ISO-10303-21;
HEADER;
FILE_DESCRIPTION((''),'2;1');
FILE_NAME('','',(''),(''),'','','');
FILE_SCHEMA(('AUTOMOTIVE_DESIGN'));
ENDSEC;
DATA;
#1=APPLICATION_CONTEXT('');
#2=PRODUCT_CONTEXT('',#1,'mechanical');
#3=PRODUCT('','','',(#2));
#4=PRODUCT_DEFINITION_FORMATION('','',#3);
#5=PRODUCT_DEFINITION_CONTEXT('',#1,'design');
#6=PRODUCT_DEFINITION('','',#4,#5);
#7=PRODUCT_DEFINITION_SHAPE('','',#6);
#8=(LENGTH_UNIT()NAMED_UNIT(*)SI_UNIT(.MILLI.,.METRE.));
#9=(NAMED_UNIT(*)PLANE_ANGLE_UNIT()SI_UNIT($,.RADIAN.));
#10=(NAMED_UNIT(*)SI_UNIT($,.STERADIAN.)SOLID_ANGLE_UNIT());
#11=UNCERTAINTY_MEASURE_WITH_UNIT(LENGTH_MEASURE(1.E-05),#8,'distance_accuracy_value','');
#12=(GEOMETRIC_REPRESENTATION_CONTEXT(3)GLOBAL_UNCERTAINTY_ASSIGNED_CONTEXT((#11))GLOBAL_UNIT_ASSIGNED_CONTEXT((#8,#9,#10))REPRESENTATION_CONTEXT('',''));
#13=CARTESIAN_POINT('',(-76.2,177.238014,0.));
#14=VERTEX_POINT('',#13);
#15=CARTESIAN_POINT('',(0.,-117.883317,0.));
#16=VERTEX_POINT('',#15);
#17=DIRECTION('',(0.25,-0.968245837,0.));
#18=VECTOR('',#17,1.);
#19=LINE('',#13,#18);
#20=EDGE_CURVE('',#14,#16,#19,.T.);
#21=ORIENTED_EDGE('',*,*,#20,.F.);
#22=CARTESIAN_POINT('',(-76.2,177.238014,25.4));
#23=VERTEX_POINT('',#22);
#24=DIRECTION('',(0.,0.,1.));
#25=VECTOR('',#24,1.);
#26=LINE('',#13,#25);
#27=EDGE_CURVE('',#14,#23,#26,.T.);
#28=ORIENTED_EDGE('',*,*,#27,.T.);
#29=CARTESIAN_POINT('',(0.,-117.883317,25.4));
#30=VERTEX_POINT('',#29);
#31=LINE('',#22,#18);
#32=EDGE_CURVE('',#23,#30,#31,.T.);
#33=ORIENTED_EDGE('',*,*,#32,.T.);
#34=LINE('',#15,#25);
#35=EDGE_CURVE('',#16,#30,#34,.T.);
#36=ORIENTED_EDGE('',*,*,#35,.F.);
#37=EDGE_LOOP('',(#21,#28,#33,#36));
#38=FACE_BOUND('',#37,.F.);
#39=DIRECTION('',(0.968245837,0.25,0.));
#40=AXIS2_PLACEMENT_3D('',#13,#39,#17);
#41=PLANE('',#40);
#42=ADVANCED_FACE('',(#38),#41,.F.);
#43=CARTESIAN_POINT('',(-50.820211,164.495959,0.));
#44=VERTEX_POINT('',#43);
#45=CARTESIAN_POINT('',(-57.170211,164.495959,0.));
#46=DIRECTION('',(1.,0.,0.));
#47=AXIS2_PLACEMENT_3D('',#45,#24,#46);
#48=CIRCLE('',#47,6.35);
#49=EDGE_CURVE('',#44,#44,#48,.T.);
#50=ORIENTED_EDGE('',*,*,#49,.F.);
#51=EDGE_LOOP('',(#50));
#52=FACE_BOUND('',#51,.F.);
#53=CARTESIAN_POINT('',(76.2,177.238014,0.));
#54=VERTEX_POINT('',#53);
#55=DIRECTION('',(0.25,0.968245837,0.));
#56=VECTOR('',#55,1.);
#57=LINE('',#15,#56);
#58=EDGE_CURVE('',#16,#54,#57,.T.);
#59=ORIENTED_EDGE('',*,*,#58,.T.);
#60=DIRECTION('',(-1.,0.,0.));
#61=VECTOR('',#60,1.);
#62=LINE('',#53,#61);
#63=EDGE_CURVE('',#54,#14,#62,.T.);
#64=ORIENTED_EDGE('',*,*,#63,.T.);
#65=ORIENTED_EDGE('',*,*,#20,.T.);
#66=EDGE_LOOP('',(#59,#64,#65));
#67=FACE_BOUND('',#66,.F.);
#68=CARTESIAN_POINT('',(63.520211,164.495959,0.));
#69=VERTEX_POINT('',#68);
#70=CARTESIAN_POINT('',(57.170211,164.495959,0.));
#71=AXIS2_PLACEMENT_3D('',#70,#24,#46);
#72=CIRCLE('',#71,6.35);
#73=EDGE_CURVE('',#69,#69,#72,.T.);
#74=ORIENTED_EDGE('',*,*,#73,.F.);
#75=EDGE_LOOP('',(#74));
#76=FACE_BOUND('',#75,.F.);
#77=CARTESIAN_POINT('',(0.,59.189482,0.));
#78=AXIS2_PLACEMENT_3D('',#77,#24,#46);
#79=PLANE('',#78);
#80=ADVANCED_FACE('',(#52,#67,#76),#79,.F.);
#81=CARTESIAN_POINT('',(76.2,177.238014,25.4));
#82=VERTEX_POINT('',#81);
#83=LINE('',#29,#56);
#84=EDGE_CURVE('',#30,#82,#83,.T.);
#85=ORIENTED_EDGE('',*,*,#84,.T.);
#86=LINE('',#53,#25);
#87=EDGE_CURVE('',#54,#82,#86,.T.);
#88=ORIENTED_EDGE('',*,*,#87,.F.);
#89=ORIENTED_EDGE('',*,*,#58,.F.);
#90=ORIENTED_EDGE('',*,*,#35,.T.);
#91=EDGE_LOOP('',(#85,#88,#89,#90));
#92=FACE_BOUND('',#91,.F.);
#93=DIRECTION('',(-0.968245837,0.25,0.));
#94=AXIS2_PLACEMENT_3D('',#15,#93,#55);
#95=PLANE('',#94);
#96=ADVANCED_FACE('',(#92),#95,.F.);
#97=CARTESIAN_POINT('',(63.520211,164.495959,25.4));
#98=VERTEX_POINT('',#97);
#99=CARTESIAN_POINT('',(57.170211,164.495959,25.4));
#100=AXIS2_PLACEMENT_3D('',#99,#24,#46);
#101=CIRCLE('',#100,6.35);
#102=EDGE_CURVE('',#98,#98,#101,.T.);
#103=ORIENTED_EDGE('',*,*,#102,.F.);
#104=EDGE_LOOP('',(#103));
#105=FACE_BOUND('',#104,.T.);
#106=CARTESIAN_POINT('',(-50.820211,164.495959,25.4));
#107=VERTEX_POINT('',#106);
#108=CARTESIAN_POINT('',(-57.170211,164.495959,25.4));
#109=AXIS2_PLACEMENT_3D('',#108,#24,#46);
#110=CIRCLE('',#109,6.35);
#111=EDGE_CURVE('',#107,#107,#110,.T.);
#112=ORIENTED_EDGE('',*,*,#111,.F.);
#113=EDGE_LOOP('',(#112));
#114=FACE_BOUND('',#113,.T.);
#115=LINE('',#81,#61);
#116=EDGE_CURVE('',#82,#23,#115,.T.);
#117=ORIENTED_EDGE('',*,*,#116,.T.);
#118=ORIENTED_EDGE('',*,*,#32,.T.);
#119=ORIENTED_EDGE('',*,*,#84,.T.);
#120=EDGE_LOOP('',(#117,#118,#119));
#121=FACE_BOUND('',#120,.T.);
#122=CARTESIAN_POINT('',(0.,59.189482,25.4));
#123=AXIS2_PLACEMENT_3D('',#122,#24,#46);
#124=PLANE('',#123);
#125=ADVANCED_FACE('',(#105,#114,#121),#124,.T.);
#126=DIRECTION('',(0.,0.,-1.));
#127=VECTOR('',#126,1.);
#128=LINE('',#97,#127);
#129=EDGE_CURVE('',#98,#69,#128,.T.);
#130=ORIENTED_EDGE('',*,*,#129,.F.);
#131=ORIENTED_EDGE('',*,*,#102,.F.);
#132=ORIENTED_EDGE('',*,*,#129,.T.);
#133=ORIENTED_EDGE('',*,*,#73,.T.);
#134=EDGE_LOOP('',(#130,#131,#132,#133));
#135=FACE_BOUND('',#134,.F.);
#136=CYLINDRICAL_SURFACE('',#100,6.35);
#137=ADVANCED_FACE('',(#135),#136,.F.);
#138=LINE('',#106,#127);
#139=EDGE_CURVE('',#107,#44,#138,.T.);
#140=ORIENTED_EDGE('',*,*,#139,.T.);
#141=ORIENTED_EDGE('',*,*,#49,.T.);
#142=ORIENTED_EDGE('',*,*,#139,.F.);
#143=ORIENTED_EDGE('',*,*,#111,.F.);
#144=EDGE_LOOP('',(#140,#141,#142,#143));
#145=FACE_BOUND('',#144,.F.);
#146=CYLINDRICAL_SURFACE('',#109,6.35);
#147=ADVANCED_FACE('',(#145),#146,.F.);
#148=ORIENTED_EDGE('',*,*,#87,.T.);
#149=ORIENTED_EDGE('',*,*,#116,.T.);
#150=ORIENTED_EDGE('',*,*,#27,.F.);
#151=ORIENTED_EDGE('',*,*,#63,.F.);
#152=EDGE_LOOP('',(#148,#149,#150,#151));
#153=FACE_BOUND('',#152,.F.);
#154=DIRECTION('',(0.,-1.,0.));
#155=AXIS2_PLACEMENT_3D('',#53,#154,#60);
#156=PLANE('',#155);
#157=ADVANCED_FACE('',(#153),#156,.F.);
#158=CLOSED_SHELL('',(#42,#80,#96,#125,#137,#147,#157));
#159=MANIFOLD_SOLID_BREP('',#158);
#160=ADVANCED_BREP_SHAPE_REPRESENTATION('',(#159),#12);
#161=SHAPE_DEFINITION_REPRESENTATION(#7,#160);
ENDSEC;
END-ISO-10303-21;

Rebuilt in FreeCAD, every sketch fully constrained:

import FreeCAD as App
import Part
import Sketcher

V = App.Vector
Q = App.Units.Quantity


def add_polygon(sketch, points):
    """Adds a closed chain of lines whose ends are joined by coincident constraints."""
    first, n = sketch.GeometryCount, len(points)
    for a, b in zip(points, points[1:] + points[:1]):
        sketch.addGeometry(Part.LineSegment(App.Vector(*a, 0), App.Vector(*b, 0)), False)
    for i in range(n):
        sketch.addConstraint(Sketcher.Constraint("Coincident", first + i, 2, first + (i + 1) % n, 1))

doc = App.newDocument("Part")
params = doc.addObject("Spreadsheet::Sheet", "Params")
for row, (alias, value) in enumerate([
    ("sketch1_width", "6 in"),
    ("sketch1_length", "12 in"),
    ("pad1_length", "1 in"),
    ("sketch2_diameter", "0.5 in"),
    ("pocket1_length", "1 in"),
], start=1):
    params.set(f"A{row}", alias)
    params.set(f"B{row}", "=" + value)
    params.setAlias(f"B{row}", alias)

body = doc.addObject("PartDesign::Body", "Body")

sketch1 = body.newObject("Sketcher::SketchObject", "Sketch")
sketch1.AttachmentSupport = (doc.getObject("XY_Plane"), [""])
sketch1.MapMode = "FlatFace"
add_polygon(sketch1, [(76.2, 177.238014), (-76.2, 177.238014), (0, -117.883317)])
sketch1.addConstraint(Sketcher.Constraint("Horizontal", 0))
sketch1.addConstraint(Sketcher.Constraint("PointOnObject", 1, 2, -2))
sketch1.addConstraint(Sketcher.Constraint("Equal", 1, 2))
sketch1.addConstraint(Sketcher.Constraint("DistanceX", 0, 2, 0, 1, Q("6 in")))
sketch1.addConstraint(Sketcher.Constraint("Distance", 1, Q("12 in")))
sketch1.addConstraint(Sketcher.Constraint("DistanceY", -1, 1, 0, 2, 177.238014))
sketch1.setExpression("Constraints[6]", "Params.sketch1_width")
sketch1.setExpression("Constraints[7]", "Params.sketch1_length")
pad1 = body.newObject("PartDesign::Pad", "Pad")
pad1.Profile = sketch1
pad1.setExpression("Length", "Params.pad1_length")

sketch2 = body.newObject("Sketcher::SketchObject", "Sketch001")
sketch2.AttachmentSupport = (doc.getObject("XY_Plane"), [""])
sketch2.MapMode = "FlatFace"
sketch2.AttachmentOffset = App.Placement(V(0, 0, 1 * 25.4), App.Rotation())
sketch2.addGeometry(Part.Circle(V(-57.170211, 164.495959, 0), V(0, 0, 1), 6.35), False)
sketch2.addGeometry(Part.Circle(V(57.170211, 164.495959, 0), V(0, 0, 1), 6.35), False)
sketch2.addConstraint(Sketcher.Constraint("Equal", 0, 1))
sketch2.addConstraint(Sketcher.Constraint("Symmetric", 0, 3, 1, 3, -2))
sketch2.addConstraint(Sketcher.Constraint("Diameter", 0, Q("0.5 in")))
sketch2.addConstraint(Sketcher.Constraint("DistanceX", 0, 3, -1, 1, 57.170211))
sketch2.addConstraint(Sketcher.Constraint("DistanceY", -1, 1, 0, 3, 164.495959))
sketch2.setExpression("Constraints[2]", "Params.sketch2_diameter")
pocket1 = body.newObject("PartDesign::Pocket", "Pocket")
pocket1.Profile = sketch2
pocket1.setExpression("Length", "Params.pocket1_length")

doc.recompute()
